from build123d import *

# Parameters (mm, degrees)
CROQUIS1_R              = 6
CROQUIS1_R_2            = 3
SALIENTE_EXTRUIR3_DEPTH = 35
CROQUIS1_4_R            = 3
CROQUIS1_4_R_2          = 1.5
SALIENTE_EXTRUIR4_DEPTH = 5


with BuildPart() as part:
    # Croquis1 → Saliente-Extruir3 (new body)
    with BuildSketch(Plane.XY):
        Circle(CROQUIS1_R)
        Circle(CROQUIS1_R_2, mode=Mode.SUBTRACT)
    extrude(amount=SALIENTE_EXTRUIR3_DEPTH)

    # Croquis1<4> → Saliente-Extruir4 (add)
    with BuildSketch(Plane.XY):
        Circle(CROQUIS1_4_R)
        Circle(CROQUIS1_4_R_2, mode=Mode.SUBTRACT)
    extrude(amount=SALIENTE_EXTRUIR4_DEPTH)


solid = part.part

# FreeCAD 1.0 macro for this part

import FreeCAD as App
import Part
import Sketcher

V = App.Vector

doc = App.newDocument("Part")
body = doc.addObject("PartDesign::Body", "Body")

# Sketch on XY plane
sketch1 = body.newObject("Sketcher::SketchObject", "Sketch")
sketch1.AttachmentSupport = (doc.getObject("XY_Plane"), [""])
sketch1.MapMode = "FlatFace"
sketch1.addGeometry([
    Part.Circle(V(0, 0, 0), V(0, 0, 1), 6),
    Part.Circle(V(0, 0, 0), V(0, 0, 1), 3),
], False)
sketch1.addConstraint([
    Sketcher.Constraint("Coincident", 0, 3, -1, 1),
    Sketcher.Constraint("Coincident", 1, 3, -1, 1),
    Sketcher.Constraint("Diameter", 0, 12.0),
    Sketcher.Constraint("Diameter", 1, 6.0),
])
pad1 = body.newObject("PartDesign::Pad", "Pad")
pad1.Profile = sketch1
pad1.Length = 35

# Sketch on XY plane
sketch2 = body.newObject("Sketcher::SketchObject", "Sketch001")
sketch2.AttachmentSupport = (doc.getObject("XY_Plane"), [""])
sketch2.MapMode = "FlatFace"
sketch2.addGeometry([
    Part.Circle(V(0, 0, 0), V(0, 0, 1), 3),
    Part.Circle(V(0, 0, 0), V(0, 0, 1), 1.5),
], False)
sketch2.addConstraint([
    Sketcher.Constraint("Coincident", 0, 3, -1, 1),
    Sketcher.Constraint("Coincident", 1, 3, -1, 1),
    Sketcher.Constraint("Diameter", 0, 6.0),
    Sketcher.Constraint("Diameter", 1, 3.0),
])
pad2 = body.newObject("PartDesign::Pad", "Pad001")
pad2.Profile = sketch2
pad2.Length = 5

doc.recompute()
